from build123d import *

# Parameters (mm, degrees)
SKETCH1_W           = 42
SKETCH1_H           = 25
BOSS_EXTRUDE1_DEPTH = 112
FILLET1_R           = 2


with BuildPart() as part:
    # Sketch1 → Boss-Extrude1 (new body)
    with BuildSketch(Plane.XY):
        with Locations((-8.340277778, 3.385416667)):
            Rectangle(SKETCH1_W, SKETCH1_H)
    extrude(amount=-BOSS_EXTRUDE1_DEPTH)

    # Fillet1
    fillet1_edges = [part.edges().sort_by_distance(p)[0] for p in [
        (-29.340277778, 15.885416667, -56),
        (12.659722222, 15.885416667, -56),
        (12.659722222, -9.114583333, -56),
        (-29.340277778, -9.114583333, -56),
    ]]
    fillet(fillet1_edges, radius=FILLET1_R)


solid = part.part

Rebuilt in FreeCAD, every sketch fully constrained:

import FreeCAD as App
import Part
import Sketcher
Q = App.Units.Quantity


def edges_at(feature, points):
    """Names of the edges that pass closest to the given points."""
    edges = feature.Shape.Edges
    near = lambda p: min(range(len(edges)), key=lambda i: edges[i].distToShape(Part.Vertex(*p))[0])
    return sorted({f"Edge{near(p) + 1}" for p in points})


def add_polygon(sketch, points):
    """Adds a closed chain of lines whose ends are joined by coincident constraints."""
    first, n = sketch.GeometryCount, len(points)
    for a, b in zip(points, points[1:] + points[:1]):
        sketch.addGeometry(Part.LineSegment(App.Vector(*a, 0), App.Vector(*b, 0)), False)
    for i in range(n):
        sketch.addConstraint(Sketcher.Constraint("Coincident", first + i, 2, first + (i + 1) % n, 1))

doc = App.newDocument("Part")
body = doc.addObject("PartDesign::Body", "Body")

sketch1 = body.newObject("Sketcher::SketchObject", "Sketch")
sketch1.AttachmentSupport = (doc.getObject("XY_Plane"), [""])
sketch1.MapMode = "FlatFace"
add_polygon(sketch1, [(-29, 16), (-29, -9), (13, -9), (13, 16)])
sketch1.addConstraint(Sketcher.Constraint("Vertical", 0))
sketch1.addConstraint(Sketcher.Constraint("Horizontal", 1))
sketch1.addConstraint(Sketcher.Constraint("Vertical", 2))
sketch1.addConstraint(Sketcher.Constraint("Horizontal", 3))
sketch1.addConstraint(Sketcher.Constraint("DistanceX", 1, 1, 1, 2, Q("42 mm")))
sketch1.addConstraint(Sketcher.Constraint("DistanceY", 0, 2, 0, 1, Q("25 mm")))
sketch1.addConstraint(Sketcher.Constraint("DistanceX", 0, 2, -1, 1, Q("29.340278 mm")))
sketch1.addConstraint(Sketcher.Constraint("DistanceY", 0, 2, -1, 1, Q("9.114583 mm")))
pad1 = body.newObject("PartDesign::Pad", "Pad")
pad1.Profile = sketch1
pad1.Length = 112
pad1.Reversed = True
doc.recompute()

fillet = body.newObject("PartDesign::Fillet", "Fillet")
fillet.Base = (pad1, edges_at(pad1, [
    (-29.34, 15.885, -56),
    (12.66, 15.885, -56),
    (12.66, -9.115, -56),
    (-29.34, -9.115, -56),
]))
fillet.Radius = 2

doc.recompute()
